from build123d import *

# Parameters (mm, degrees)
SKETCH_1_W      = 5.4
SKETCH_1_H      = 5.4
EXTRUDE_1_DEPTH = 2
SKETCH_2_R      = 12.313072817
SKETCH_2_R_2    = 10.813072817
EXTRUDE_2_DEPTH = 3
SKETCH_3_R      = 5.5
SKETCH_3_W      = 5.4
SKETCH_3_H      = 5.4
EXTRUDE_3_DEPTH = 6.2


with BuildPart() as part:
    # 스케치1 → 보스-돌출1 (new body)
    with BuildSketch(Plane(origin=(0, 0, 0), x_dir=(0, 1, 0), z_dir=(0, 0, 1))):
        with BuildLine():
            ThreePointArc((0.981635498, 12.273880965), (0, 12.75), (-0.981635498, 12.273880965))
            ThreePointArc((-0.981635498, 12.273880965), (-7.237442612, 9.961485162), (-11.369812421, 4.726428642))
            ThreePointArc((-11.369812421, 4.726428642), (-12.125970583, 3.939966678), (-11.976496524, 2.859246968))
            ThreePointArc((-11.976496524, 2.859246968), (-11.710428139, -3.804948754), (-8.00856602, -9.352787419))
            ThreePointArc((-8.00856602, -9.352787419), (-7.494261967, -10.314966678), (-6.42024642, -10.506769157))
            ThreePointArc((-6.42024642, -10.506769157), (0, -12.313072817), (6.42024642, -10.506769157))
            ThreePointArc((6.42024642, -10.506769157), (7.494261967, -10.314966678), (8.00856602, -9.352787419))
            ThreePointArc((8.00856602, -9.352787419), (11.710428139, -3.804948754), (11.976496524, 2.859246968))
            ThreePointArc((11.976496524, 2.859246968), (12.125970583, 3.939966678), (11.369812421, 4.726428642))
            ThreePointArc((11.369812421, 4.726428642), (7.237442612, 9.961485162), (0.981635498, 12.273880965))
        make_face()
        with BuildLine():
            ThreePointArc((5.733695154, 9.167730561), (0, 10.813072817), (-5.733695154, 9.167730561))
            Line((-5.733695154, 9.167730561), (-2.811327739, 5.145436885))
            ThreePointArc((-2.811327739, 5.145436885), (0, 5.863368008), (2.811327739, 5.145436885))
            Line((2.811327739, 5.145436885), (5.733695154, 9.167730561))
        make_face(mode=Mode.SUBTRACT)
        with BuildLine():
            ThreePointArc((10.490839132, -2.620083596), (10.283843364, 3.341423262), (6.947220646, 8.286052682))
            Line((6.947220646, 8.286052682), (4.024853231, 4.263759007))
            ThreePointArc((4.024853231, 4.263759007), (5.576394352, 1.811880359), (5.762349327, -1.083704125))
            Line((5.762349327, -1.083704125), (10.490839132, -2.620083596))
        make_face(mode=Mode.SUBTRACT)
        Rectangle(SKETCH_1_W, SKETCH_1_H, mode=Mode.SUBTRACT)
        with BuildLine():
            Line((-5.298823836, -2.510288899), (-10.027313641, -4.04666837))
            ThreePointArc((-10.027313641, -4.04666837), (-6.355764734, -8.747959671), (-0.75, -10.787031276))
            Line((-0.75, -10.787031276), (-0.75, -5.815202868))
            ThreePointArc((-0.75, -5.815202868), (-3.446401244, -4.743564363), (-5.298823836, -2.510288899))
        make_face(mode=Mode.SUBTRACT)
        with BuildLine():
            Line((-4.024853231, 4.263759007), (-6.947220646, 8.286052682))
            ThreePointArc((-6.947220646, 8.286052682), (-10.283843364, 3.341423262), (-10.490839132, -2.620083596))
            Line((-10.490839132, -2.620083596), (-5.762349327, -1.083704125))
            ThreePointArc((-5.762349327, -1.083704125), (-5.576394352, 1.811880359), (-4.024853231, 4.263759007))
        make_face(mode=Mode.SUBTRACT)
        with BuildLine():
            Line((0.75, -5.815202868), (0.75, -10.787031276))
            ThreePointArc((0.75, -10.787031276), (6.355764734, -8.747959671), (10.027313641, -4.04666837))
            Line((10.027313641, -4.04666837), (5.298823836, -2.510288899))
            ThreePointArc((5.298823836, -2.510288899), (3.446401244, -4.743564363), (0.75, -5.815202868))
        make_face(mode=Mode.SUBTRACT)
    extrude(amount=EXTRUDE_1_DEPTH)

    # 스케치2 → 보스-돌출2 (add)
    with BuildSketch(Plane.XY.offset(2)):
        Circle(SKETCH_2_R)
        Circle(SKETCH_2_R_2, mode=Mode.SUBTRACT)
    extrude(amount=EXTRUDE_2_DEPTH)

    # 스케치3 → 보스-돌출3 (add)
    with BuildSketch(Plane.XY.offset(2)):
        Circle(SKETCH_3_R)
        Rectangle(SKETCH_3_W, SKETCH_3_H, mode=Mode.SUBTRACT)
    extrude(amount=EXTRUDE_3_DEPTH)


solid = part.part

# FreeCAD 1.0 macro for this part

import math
import FreeCAD as App
import Part
import Sketcher

V = App.Vector
Q = App.Units.Quantity

doc = App.newDocument("Part")
body = doc.addObject("PartDesign::Body", "Body")

sketch1 = body.newObject("Sketcher::SketchObject", "Sketch")
sketch1.AttachmentSupport = (doc.getObject("XY_Plane"), [""])
sketch1.MapMode = "FlatFace"
sketch1.addGeometry(Part.ArcOfCircle(Part.Circle(V(-11.5, 0, 0), V(0, 0, 1), 1.2), math.radians(128), math.radians(232)), False)
sketch1.addGeometry(Part.ArcOfCircle(Part.Circle(V(0, 0, 0), V(0, 0, 1), 12.3), math.radians(-175), math.radians(-113)), False)
sketch1.addGeometry(Part.ArcOfCircle(Part.Circle(V(-3.6, -10.9, 0), V(0, 0, 1), 1.2), math.radians(-160), math.radians(-56)), False)
sketch1.addGeometry(Part.ArcOfCircle(Part.Circle(V(0, 0, 0), V(0, 0, 1), 12.3), math.radians(-103), math.radians(-41)), False)
sketch1.addGeometry(Part.ArcOfCircle(Part.Circle(V(9.3, -6.8, 0), V(0, 0, 1), 1.2), math.radians(-88), math.radians(16)), False)
sketch1.addGeometry(Part.ArcOfCircle(Part.Circle(V(0, 0, 0), V(0, 0, 1), 12.3), math.radians(-31), math.radians(31)), False)
sketch1.addGeometry(Part.ArcOfCircle(Part.Circle(V(9.3, 6.8, 0), V(0, 0, 1), 1.2), math.radians(-16), math.radians(88)), False)
sketch1.addGeometry(Part.ArcOfCircle(Part.Circle(V(0, 0, 0), V(0, 0, 1), 12.3), math.radians(41), math.radians(103)), False)
sketch1.addGeometry(Part.ArcOfCircle(Part.Circle(V(-3.6, 10.9, 0), V(0, 0, 1), 1.2), math.radians(56), math.radians(160)), False)
sketch1.addGeometry(Part.ArcOfCircle(Part.Circle(V(0, 0, 0), V(0, 0, 1), 12.3), math.radians(113), math.radians(175)), False)
sketch1.addGeometry(Part.LineSegment(V(4, -10, 0), V(2.5, -5.3, 0)), False)
sketch1.addGeometry(Part.ArcOfCircle(Part.Circle(V(0, 0, 0), V(0, 0, 1), 5.9), math.radians(-65), math.radians(-7)), False)
sketch1.addGeometry(Part.LineSegment(V(5.8, -0.8, 0), V(10.8, -0.8, 0)), False)
sketch1.addGeometry(Part.ArcOfCircle(Part.Circle(V(0, 0, 0), V(0, 0, 1), 10.8), math.radians(-68), math.radians(-4)), False)
sketch1.addGeometry(Part.LineSegment(V(10.8, 0.8, 0), V(5.8, 0.8, 0)), False)
sketch1.addGeometry(Part.ArcOfCircle(Part.Circle(V(0, 0, 0), V(0, 0, 1), 5.9), math.radians(7), math.radians(65)), False)
sketch1.addGeometry(Part.LineSegment(V(2.5, 5.3, 0), V(4, 10, 0)), False)
sketch1.addGeometry(Part.ArcOfCircle(Part.Circle(V(0, 0, 0), V(0, 0, 1), 10.8), math.radians(4), math.radians(68)), False)
sketch1.addGeometry(Part.LineSegment(V(2.7, 2.7, 0), V(2.7, -2.7, 0)), False)
sketch1.addGeometry(Part.LineSegment(V(2.7, -2.7, 0), V(-2.7, -2.7, 0)), False)
sketch1.addGeometry(Part.LineSegment(V(-2.7, -2.7, 0), V(-2.7, 2.7, 0)), False)
sketch1.addGeometry(Part.LineSegment(V(-2.7, 2.7, 0), V(2.7, 2.7, 0)), False)
sketch1.addGeometry(Part.LineSegment(V(-8.3, -6.9, 0), V(-4.3, -4, 0)), False)
sketch1.addGeometry(Part.ArcOfCircle(Part.Circle(V(0, 0, 0), V(0, 0, 1), 5.9), math.radians(-137), math.radians(-79)), False)
sketch1.addGeometry(Part.LineSegment(V(1.1, -5.8, 0), V(2.6, -10.5, 0)), False)
sketch1.addGeometry(Part.ArcOfCircle(Part.Circle(V(0, 0, 0), V(0, 0, 1), 10.8), math.radians(-140), math.radians(-76)), False)
sketch1.addGeometry(Part.ArcOfCircle(Part.Circle(V(0, 0, 0), V(0, 0, 1), 10.8), math.radians(148), math.radians(212)), False)
sketch1.addGeometry(Part.LineSegment(V(-9.2, 5.7, 0), V(-5.1, 2.8, 0)), False)
sketch1.addGeometry(Part.ArcOfCircle(Part.Circle(V(0, 0, 0), V(0, 0, 1), 5.9), math.radians(151), math.radians(209)), False)
sketch1.addGeometry(Part.LineSegment(V(-5.1, -2.8, 0), V(-9.2, -5.7, 0)), False)
sketch1.addGeometry(Part.ArcOfCircle(Part.Circle(V(0, 0, 0), V(0, 0, 1), 10.8), math.radians(76), math.radians(140)), False)
sketch1.addGeometry(Part.LineSegment(V(2.6, 10.5, 0), V(1.1, 5.8, 0)), False)
sketch1.addGeometry(Part.ArcOfCircle(Part.Circle(V(0, 0, 0), V(0, 0, 1), 5.9), math.radians(79), math.radians(137)), False)
sketch1.addGeometry(Part.LineSegment(V(-4.3, 4, 0), V(-8.3, 6.9, 0)), False)
sketch1.addConstraint(Sketcher.Constraint("Coincident", 0, 2, 1, 1))
sketch1.addConstraint(Sketcher.Constraint("Coincident", 1, 2, 2, 1))
sketch1.addConstraint(Sketcher.Constraint("Coincident", 2, 2, 3, 1))
sketch1.addConstraint(Sketcher.Constraint("Coincident", 3, 2, 4, 1))
sketch1.addConstraint(Sketcher.Constraint("Coincident", 4, 2, 5, 1))
sketch1.addConstraint(Sketcher.Constraint("Coincident", 5, 2, 6, 1))
sketch1.addConstraint(Sketcher.Constraint("Coincident", 6, 2, 7, 1))
sketch1.addConstraint(Sketcher.Constraint("Coincident", 7, 2, 8, 1))
sketch1.addConstraint(Sketcher.Constraint("Coincident", 8, 2, 9, 1))
sketch1.addConstraint(Sketcher.Constraint("Coincident", 9, 2, 0, 1))
sketch1.addConstraint(Sketcher.Constraint("Coincident", 10, 2, 11, 1))
sketch1.addConstraint(Sketcher.Constraint("Coincident", 11, 2, 12, 1))
sketch1.addConstraint(Sketcher.Constraint("Coincident", 12, 2, 13, 2))
sketch1.addConstraint(Sketcher.Constraint("Coincident", 13, 1, 10, 1))
sketch1.addConstraint(Sketcher.Constraint("Coincident", 14, 2, 15, 1))
sketch1.addConstraint(Sketcher.Constraint("Coincident", 15, 2, 16, 1))
sketch1.addConstraint(Sketcher.Constraint("Coincident", 16, 2, 17, 2))
sketch1.addConstraint(Sketcher.Constraint("Coincident", 17, 1, 14, 1))
sketch1.addConstraint(Sketcher.Constraint("Coincident", 18, 2, 19, 1))
sketch1.addConstraint(Sketcher.Constraint("Coincident", 19, 2, 20, 1))
sketch1.addConstraint(Sketcher.Constraint("Coincident", 20, 2, 21, 1))
sketch1.addConstraint(Sketcher.Constraint("Coincident", 21, 2, 18, 1))
sketch1.addConstraint(Sketcher.Constraint("Coincident", 22, 2, 23, 1))
sketch1.addConstraint(Sketcher.Constraint("Coincident", 23, 2, 24, 1))
sketch1.addConstraint(Sketcher.Constraint("Coincident", 24, 2, 25, 2))
sketch1.addConstraint(Sketcher.Constraint("Coincident", 25, 1, 22, 1))
sketch1.addConstraint(Sketcher.Constraint("Coincident", 26, 1, 27, 1))
sketch1.addConstraint(Sketcher.Constraint("Coincident", 27, 2, 28, 1))
sketch1.addConstraint(Sketcher.Constraint("Coincident", 28, 2, 29, 1))
sketch1.addConstraint(Sketcher.Constraint("Coincident", 29, 2, 26, 2))
sketch1.addConstraint(Sketcher.Constraint("Coincident", 30, 1, 31, 1))
sketch1.addConstraint(Sketcher.Constraint("Coincident", 31, 2, 32, 1))
sketch1.addConstraint(Sketcher.Constraint("Coincident", 32, 2, 33, 1))
sketch1.addConstraint(Sketcher.Constraint("Coincident", 33, 2, 30, 2))
sketch1.addConstraint(Sketcher.Constraint("Horizontal", 12))
sketch1.addConstraint(Sketcher.Constraint("Horizontal", 14))
sketch1.addConstraint(Sketcher.Constraint("Vertical", 18))
sketch1.addConstraint(Sketcher.Constraint("Horizontal", 19))
sketch1.addConstraint(Sketcher.Constraint("Vertical", 20))
sketch1.addConstraint(Sketcher.Constraint("Horizontal", 21))
sketch1.addConstraint(Sketcher.Constraint("Coincident", 1, 3, -1, 1))
sketch1.addConstraint(Sketcher.Constraint("Coincident", 3, 3, -1, 1))
sketch1.addConstraint(Sketcher.Constraint("Coincident", 5, 3, -1, 1))
sketch1.addConstraint(Sketcher.Constraint("Coincident", 7, 3, -1, 1))
sketch1.addConstraint(Sketcher.Constraint("Coincident", 9, 3, -1, 1))
sketch1.addConstraint(Sketcher.Constraint("Coincident", 11, 3, -1, 1))
sketch1.addConstraint(Sketcher.Constraint("Coincident", 13, 3, -1, 1))
sketch1.addConstraint(Sketcher.Constraint("Coincident", 15, 3, -1, 1))
sketch1.addConstraint(Sketcher.Constraint("Coincident", 17, 3, -1, 1))
sketch1.addConstraint(Sketcher.Constraint("Coincident", 23, 3, -1, 1))
sketch1.addConstraint(Sketcher.Constraint("Coincident", 25, 3, -1, 1))
sketch1.addConstraint(Sketcher.Constraint("Coincident", 26, 3, -1, 1))
sketch1.addConstraint(Sketcher.Constraint("Coincident", 28, 3, -1, 1))
sketch1.addConstraint(Sketcher.Constraint("Coincident", 30, 3, -1, 1))
sketch1.addConstraint(Sketcher.Constraint("Coincident", 32, 3, -1, 1))
sketch1.addConstraint(Sketcher.Constraint("Equal", 0, 2))
sketch1.addConstraint(Sketcher.Constraint("Equal", 1, 3))
sketch1.addConstraint(Sketcher.Constraint("Equal", 2, 4))
sketch1.addConstraint(Sketcher.Constraint("Equal", 3, 5))
sketch1.addConstraint(Sketcher.Constraint("Equal", 4, 6))
sketch1.addConstraint(Sketcher.Constraint("Equal", 5, 7))
sketch1.addConstraint(Sketcher.Constraint("Equal", 6, 8))
sketch1.addConstraint(Sketcher.Constraint("Equal", 7, 9))
sketch1.addConstraint(Sketcher.Constraint("Equal", 11, 15))
sketch1.addConstraint(Sketcher.Constraint("Equal", 13, 17))
sketch1.addConstraint(Sketcher.Constraint("Equal", 15, 23))
sketch1.addConstraint(Sketcher.Constraint("Equal", 17, 25))
sketch1.addConstraint(Sketcher.Constraint("Equal", 25, 26))
sketch1.addConstraint(Sketcher.Constraint("Equal", 23, 28))
sketch1.addConstraint(Sketcher.Constraint("Equal", 26, 30))
sketch1.addConstraint(Sketcher.Constraint("Equal", 28, 32))
sketch1.addConstraint(Sketcher.Constraint("Symmetric", 18, 2, 20, 2, -1, 1))
sketch1.addConstraint(Sketcher.Constraint("Symmetric", 4, 3, 6, 3, -1))
sketch1.addConstraint(Sketcher.Constraint("Symmetric", 2, 3, 8, 3, -1))
sketch1.addConstraint(Sketcher.Constraint("PointOnObject", 0, 3, -1))
sketch1.addConstraint(Sketcher.Constraint("Parallel", 10, 24))
sketch1.addConstraint(Sketcher.Constraint("Parallel", 22, 29))
sketch1.addConstraint(Sketcher.Constraint("Parallel", 16, 31))
sketch1.addConstraint(Sketcher.Constraint("Parallel", 27, 33))
sketch1.addConstraint(Sketcher.Constraint("Vertical", 11, 2, 14, 2))
sketch1.addConstraint(Sketcher.Constraint("Vertical", 10, 2, 15, 2))
sketch1.addConstraint(Sketcher.Constraint("Vertical", 13, 1, 16, 2))
sketch1.addConstraint(Sketcher.Constraint("Vertical", 27, 2, 28, 2))
sketch1.addConstraint(Sketcher.Constraint("Vertical", 26, 1, 29, 2))
sketch1.addConstraint(Sketcher.Constraint("Vertical", 24, 2, 30, 1))
sketch1.addConstraint(Sketcher.Constraint("Vertical", 22, 2, 32, 2))
sketch1.addConstraint(Sketcher.Constraint("Equal", 21, 18))
sketch1.addConstraint(Sketcher.Constraint("Equal", 16, 22))
sketch1.addConstraint(Sketcher.Constraint("Equal", 22, 24))
sketch1.addConstraint(Sketcher.Constraint("Equal", 24, 27))
sketch1.addConstraint(Sketcher.Constraint("Angle", 10, Q("108 deg")))
sketch1.addConstraint(Sketcher.Constraint("Angle", 22, Q("36 deg")))
sketch1.addConstraint(Sketcher.Constraint("Radius", 0, Q("1.25 mm")))
sketch1.addConstraint(Sketcher.Constraint("DistanceX", 19, 2, 19, 1, Q("5.4 mm")))
sketch1.addConstraint(Sketcher.Constraint("DistanceX", 0, 3, -1, 1, Q("11.5 mm")))
sketch1.addConstraint(Sketcher.Constraint("DistanceY", 11, 2, 14, 2, Q("1.5 mm")))
sketch1.addConstraint(Sketcher.Constraint("Radius", 11, Q("5.863368 mm")))
sketch1.addConstraint(Sketcher.Constraint("Radius", 1, Q("12.313073 mm")))
sketch1.addConstraint(Sketcher.Constraint("Radius", 13, Q("10.813073 mm")))
sketch1.addConstraint(Sketcher.Constraint("DistanceX", 13, 1, 4, 2, Q("6.460101 mm")))
sketch1.addConstraint(Sketcher.Constraint("DistanceX", 26, 1, 8, 2, Q("4.441302 mm")))
sketch1.addConstraint(Sketcher.Constraint("Distance", 10, Q("4.971828 mm")))
sketch1.addConstraint(Sketcher.Constraint("DistanceY", 2, 3, -1, 1, Q("10.93715 mm")))
sketch1.addConstraint(Sketcher.Constraint("DistanceY", 4, 3, -1, 1, Q("6.75953 mm")))
pad1 = body.newObject("PartDesign::Pad", "Pad")
pad1.Profile = sketch1
pad1.Length = 2

sketch2 = body.newObject("Sketcher::SketchObject", "Sketch001")
sketch2.AttachmentSupport = (doc.getObject("XY_Plane"), [""])
sketch2.MapMode = "FlatFace"
sketch2.AttachmentOffset = App.Placement(V(0, 0, 2), App.Rotation())
sketch2.addGeometry(Part.Circle(V(0, 0, 0), V(0, 0, 1), 12), False)
sketch2.addGeometry(Part.Circle(V(0, 0, 0), V(0, 0, 1), 11), False)
sketch2.addConstraint(Sketcher.Constraint("Coincident", 0, 3, -1, 1))
sketch2.addConstraint(Sketcher.Constraint("Coincident", 1, 3, -1, 1))
sketch2.addConstraint(Sketcher.Constraint("Diameter", 0, Q("24.626146 mm")))
sketch2.addConstraint(Sketcher.Constraint("Diameter", 1, Q("21.626146 mm")))
pad2 = body.newObject("PartDesign::Pad", "Pad001")
pad2.Profile = sketch2
pad2.Length = 3

sketch3 = body.newObject("Sketcher::SketchObject", "Sketch002")
sketch3.AttachmentSupport = (doc.getObject("XY_Plane"), [""])
sketch3.MapMode = "FlatFace"
sketch3.AttachmentOffset = App.Placement(V(0, 0, 2), App.Rotation())
sketch3.addGeometry(Part.Circle(V(0, 0, 0), V(0, 0, 1), 6), False)
sketch3.addGeometry(Part.LineSegment(V(3, -3, 0), V(-3, -3, 0)), False)
sketch3.addGeometry(Part.LineSegment(V(-3, -3, 0), V(-3, 3, 0)), False)
sketch3.addGeometry(Part.LineSegment(V(-3, 3, 0), V(3, 3, 0)), False)
sketch3.addGeometry(Part.LineSegment(V(3, 3, 0), V(3, -3, 0)), False)
sketch3.addConstraint(Sketcher.Constraint("Coincident", 1, 2, 2, 1))
sketch3.addConstraint(Sketcher.Constraint("Coincident", 2, 2, 3, 1))
sketch3.addConstraint(Sketcher.Constraint("Coincident", 3, 2, 4, 1))
sketch3.addConstraint(Sketcher.Constraint("Coincident", 4, 2, 1, 1))
sketch3.addConstraint(Sketcher.Constraint("Horizontal", 1))
sketch3.addConstraint(Sketcher.Constraint("Vertical", 2))
sketch3.addConstraint(Sketcher.Constraint("Horizontal", 3))
sketch3.addConstraint(Sketcher.Constraint("Vertical", 4))
sketch3.addConstraint(Sketcher.Constraint("Coincident", 0, 3, -1, 1))
sketch3.addConstraint(Sketcher.Constraint("Symmetric", 1, 2, 3, 2, -1, 1))
sketch3.addConstraint(Sketcher.Constraint("Equal", 3, 2))
sketch3.addConstraint(Sketcher.Constraint("Diameter", 0, Q("11 mm")))
sketch3.addConstraint(Sketcher.Constraint("DistanceX", 1, 2, 1, 1, Q("5.4 mm")))
pad3 = body.newObject("PartDesign::Pad", "Pad002")
pad3.Profile = sketch3
pad3.Length = 6.2

doc.recompute()
